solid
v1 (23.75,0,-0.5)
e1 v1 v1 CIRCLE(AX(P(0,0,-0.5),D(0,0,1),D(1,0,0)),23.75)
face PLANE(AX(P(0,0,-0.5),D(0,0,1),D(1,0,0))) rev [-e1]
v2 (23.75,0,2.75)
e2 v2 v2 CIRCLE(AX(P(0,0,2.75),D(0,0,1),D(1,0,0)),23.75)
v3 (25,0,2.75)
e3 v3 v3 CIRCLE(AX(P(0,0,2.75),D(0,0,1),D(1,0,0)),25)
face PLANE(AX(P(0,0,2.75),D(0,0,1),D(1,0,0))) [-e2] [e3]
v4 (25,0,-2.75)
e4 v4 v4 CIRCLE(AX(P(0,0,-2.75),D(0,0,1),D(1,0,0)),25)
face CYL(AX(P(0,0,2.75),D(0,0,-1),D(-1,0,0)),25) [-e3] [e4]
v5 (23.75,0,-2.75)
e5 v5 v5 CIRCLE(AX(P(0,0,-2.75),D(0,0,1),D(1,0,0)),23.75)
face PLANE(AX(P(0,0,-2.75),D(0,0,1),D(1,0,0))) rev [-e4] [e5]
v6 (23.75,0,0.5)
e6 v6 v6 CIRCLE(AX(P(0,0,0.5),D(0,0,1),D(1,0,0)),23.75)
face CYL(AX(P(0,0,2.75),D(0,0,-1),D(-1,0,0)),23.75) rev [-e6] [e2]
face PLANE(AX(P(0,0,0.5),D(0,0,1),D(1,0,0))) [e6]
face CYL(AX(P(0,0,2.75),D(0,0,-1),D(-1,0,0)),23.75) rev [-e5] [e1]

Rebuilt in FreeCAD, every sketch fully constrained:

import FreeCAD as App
import Part
import Sketcher
from FreeCAD import Vector

doc = App.newDocument("Part")
body = doc.addObject("PartDesign::Body", "Body")

# Sketch on XY plane
sketch1 = body.newObject("Sketcher::SketchObject", "Sketch")
sketch1.AttachmentSupport = (doc.getObject("XY_Plane"), [""])
sketch1.MapMode = "FlatFace"
sketch1.addGeometry([
    Part.Circle(Vector(0, 0, 0), Vector(0, 0, 1), 25),
    Part.Circle(Vector(0, 0, 0), Vector(0, 0, 1), 23.75),
], False)
sketch1.addConstraint([
    Sketcher.Constraint("Coincident", 0, 3, -1, 1),
    Sketcher.Constraint("Coincident", 1, 3, -1, 1),
    Sketcher.Constraint("Diameter", 0, 50.0),
    Sketcher.Constraint("Diameter", 1, 47.5),
])
pad1 = body.newObject("PartDesign::Pad", "Pad")
pad1.Profile = sketch1
pad1.Length = 5.5
pad1.Midplane = True

# Sketch on XY plane
sketch2 = body.newObject("Sketcher::SketchObject", "Sketch001")
sketch2.AttachmentSupport = (doc.getObject("XY_Plane"), [""])
sketch2.MapMode = "FlatFace"
sketch2.addGeometry(Part.Circle(Vector(0, 0, 0), Vector(0, 0, 1), 23.75), False)
sketch2.addConstraint([
    Sketcher.Constraint("Coincident", 0, 3, -1, 1),
    Sketcher.Constraint("Diameter", 0, 47.5),
])
pad2 = body.newObject("PartDesign::Pad", "Pad001")
pad2.Profile = sketch2
pad2.Length = 1
pad2.Midplane = True

doc.recompute()
